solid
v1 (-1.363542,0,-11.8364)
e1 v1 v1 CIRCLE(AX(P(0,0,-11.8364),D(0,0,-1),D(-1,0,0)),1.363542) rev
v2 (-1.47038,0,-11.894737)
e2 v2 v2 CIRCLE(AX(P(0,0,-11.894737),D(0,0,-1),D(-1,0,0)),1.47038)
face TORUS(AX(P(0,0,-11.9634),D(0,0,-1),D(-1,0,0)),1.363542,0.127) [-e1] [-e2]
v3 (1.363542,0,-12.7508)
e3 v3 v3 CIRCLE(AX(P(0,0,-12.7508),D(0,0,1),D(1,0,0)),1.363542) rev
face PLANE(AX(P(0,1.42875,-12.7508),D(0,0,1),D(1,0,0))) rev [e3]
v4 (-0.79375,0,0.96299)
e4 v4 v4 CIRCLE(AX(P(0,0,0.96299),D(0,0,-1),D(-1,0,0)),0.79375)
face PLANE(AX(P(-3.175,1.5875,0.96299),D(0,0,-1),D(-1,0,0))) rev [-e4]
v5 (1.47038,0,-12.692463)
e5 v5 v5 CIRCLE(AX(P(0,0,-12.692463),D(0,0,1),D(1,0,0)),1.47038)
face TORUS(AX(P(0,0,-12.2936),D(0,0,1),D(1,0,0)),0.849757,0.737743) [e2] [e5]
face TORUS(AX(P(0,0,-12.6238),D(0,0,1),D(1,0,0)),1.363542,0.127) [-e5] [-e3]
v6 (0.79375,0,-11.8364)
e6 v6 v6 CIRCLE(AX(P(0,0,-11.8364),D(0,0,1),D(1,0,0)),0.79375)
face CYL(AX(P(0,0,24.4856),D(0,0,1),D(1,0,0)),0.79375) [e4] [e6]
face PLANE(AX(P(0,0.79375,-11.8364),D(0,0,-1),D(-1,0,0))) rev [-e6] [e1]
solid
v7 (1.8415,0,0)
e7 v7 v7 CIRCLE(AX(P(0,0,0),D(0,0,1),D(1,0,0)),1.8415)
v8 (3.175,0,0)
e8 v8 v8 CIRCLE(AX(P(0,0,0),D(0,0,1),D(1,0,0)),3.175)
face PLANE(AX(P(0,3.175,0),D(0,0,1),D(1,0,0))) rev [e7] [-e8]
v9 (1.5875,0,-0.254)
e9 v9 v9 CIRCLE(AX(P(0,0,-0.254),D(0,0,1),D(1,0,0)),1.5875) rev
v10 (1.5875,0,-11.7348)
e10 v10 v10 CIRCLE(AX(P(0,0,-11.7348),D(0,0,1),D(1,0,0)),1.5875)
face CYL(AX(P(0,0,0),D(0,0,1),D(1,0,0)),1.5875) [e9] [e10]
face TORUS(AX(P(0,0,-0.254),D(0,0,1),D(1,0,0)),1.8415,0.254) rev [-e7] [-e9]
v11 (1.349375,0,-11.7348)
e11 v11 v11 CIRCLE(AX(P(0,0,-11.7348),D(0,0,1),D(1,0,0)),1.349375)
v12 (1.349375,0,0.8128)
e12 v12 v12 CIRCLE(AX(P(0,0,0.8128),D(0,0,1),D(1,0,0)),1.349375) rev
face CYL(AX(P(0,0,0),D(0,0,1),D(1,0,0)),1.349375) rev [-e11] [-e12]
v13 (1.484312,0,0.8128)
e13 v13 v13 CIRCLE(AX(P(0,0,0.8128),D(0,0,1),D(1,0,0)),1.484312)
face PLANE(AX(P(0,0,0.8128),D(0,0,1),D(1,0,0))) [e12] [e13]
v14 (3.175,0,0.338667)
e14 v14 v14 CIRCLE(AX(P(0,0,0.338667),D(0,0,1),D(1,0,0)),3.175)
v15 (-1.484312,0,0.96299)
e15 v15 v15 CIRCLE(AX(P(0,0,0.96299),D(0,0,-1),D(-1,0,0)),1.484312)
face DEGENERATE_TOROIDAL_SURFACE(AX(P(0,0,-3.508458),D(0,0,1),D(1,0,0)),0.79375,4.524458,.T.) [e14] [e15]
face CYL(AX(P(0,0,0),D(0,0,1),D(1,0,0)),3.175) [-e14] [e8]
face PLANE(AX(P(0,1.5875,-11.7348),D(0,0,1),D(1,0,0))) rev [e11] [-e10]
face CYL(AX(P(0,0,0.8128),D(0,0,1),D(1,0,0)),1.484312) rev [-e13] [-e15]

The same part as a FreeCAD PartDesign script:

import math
import FreeCAD as App
import Part
import Sketcher

V = App.Vector
Q = App.Units.Quantity


def edges_at(feature, points):
    """Names of the edges that pass closest to the given points."""
    edges = feature.Shape.Edges
    near = lambda p: min(range(len(edges)), key=lambda i: edges[i].distToShape(Part.Vertex(*p))[0])
    return sorted({f"Edge{near(p) + 1}" for p in points})

doc = App.newDocument("Part")
body = doc.addObject("PartDesign::Body", "Body")

sketch1 = doc.addObject("Sketcher::SketchObject", "Sketch")
body.addObject(sketch1)
sketch1.AttachmentSupport = (doc.YZ_Plane, [""])
sketch1.MapMode = "FlatFace"
sketch1.addGeometry([
    Part.LineSegment(V(0.8, 24.5, 0), V(0, 24.5, 0)),
    Part.LineSegment(V(0, 24.5, 0), V(0, -12.8, 0)),
    Part.LineSegment(V(0, -12.8, 0), V(1.4, -12.8, 0)),
    Part.ArcOfCircle(Part.Circle(V(0.8, -12.3, 0), V(0, 0, 1), 0.7), math.radians(-38), math.radians(38)),
    Part.LineSegment(V(1.4, -11.8, 0), V(0.8, -11.8, 0)),
    Part.LineSegment(V(0.8, -11.8, 0), V(0.8, 24.5, 0)),
], False)
sketch1.addConstraint([
    Sketcher.Constraint("Coincident", 0, 2, 1, 1),
    Sketcher.Constraint("Coincident", 1, 2, 2, 1),
    Sketcher.Constraint("Coincident", 2, 2, 3, 1),
    Sketcher.Constraint("Coincident", 3, 2, 4, 1),
    Sketcher.Constraint("Coincident", 4, 2, 5, 1),
    Sketcher.Constraint("Coincident", 5, 2, 0, 1),
    Sketcher.Constraint("Horizontal", 0),
    Sketcher.Constraint("Vertical", 1),
    Sketcher.Constraint("Horizontal", 2),
    Sketcher.Constraint("Horizontal", 4),
    Sketcher.Constraint("Vertical", 5),
    Sketcher.Constraint("PointOnObject", 0, 2, -2),
    Sketcher.Constraint("Vertical", 2, 2, 3, 2),
    Sketcher.Constraint("DistanceY", 5, 1, 5, 2, Q("1.43 in")),
    Sketcher.Constraint("DistanceX", 0, 2, 0, 1, Q("0.03125 in")),
    Sketcher.Constraint("DistanceX", 4, 2, 4, 1, Q("0.025 in")),
    Sketcher.Constraint("DistanceY", 1, 2, 1, 1, Q("1.466 in")),
    Sketcher.Constraint("DistanceY", 3, 3, -1, 1, Q("0.484 in")),
    Sketcher.Constraint("Radius", 3, 0.737743),
])
revolution = doc.addObject("PartDesign::Revolution", "Revolution")
body.addObject(revolution)
revolution.Profile = sketch1
revolution.ReferenceAxis = (sketch1, ["V_Axis"])
revolution.Angle = 360
doc.recompute()

fillet = doc.addObject("PartDesign::Fillet", "Fillet")
body.addObject(fillet)
fillet.Base = (revolution, edges_at(revolution, [(-1.429, 0, -11.836), (-1.429, 0, -12.751)]))
fillet.Radius = Q("0.005 in")

sketch2 = doc.addObject("Sketcher::SketchObject", "Sketch001")
body.addObject(sketch2)
sketch2.AttachmentSupport = (doc.XZ_Plane, [""])
sketch2.MapMode = "FlatFace"
sketch2.addGeometry([
    Part.LineSegment(V(1, 23.2, 0), V(0, 24.5, 0)),
    Part.LineSegment(V(0, 24.5, 0), V(-1, 23.2, 0)),
    Part.LineSegment(V(-1, 23.2, 0), V(-1, 25, 0)),
    Part.LineSegment(V(-1, 25, 0), V(1, 25, 0)),
    Part.LineSegment(V(1, 25, 0), V(1, 23.2, 0)),
], False)
sketch2.addConstraint([
    Sketcher.Constraint("Coincident", 0, 2, 1, 1),
    Sketcher.Constraint("Coincident", 1, 2, 2, 1),
    Sketcher.Constraint("Coincident", 2, 2, 3, 1),
    Sketcher.Constraint("Coincident", 3, 2, 4, 1),
    Sketcher.Constraint("Coincident", 4, 2, 0, 1),
    Sketcher.Constraint("Vertical", 2),
    Sketcher.Constraint("Horizontal", 3),
    Sketcher.Constraint("Vertical", 4),
    Sketcher.Constraint("Symmetric", 1, 2, 4, 2, -2),
    Sketcher.Constraint("PointOnObject", 0, 2, -2),
    Sketcher.Constraint("Angle", 0, Q("127.5 deg")),
    Sketcher.Constraint("DistanceY", 0, 2, 2, 2, Q("0.02 in")),
    Sketcher.Constraint("DistanceX", 3, 1, 3, 2, Q("0.0785 in")),
    Sketcher.Constraint("DistanceY", -1, 1, 0, 2, Q("0.964 in")),
])
pocket1 = doc.addObject("PartDesign::Pocket", "Pocket")
body.addObject(pocket1)
pocket1.Profile = sketch2
pocket1.Type = "ThroughAll"
pocket1.Midplane = True

sketch3 = doc.addObject("Sketcher::SketchObject", "Sketch002")
body.addObject(sketch3)
sketch3.AttachmentSupport = (doc.YZ_Plane, [""])
sketch3.MapMode = "FlatFace"
sketch3.addGeometry([
    Part.LineSegment(V(1.6, 24.5, 0), V(-1.6, 24.5, 0)),
    Part.LineSegment(V(-1.6, 24.5, 0), V(-1.6, 1, 0)),
    Part.LineSegment(V(-1.6, 1, 0), V(1.6, 1, 0)),
    Part.LineSegment(V(1.6, 1, 0), V(1.6, 24.5, 0)),
], False)
sketch3.addConstraint([
    Sketcher.Constraint("Coincident", 0, 2, 1, 1),
    Sketcher.Constraint("Coincident", 1, 2, 2, 1),
    Sketcher.Constraint("Coincident", 2, 2, 3, 1),
    Sketcher.Constraint("Coincident", 3, 2, 0, 1),
    Sketcher.Constraint("Horizontal", 0),
    Sketcher.Constraint("Vertical", 1),
    Sketcher.Constraint("Horizontal", 2),
    Sketcher.Constraint("Vertical", 3),
    Sketcher.Constraint("DistanceX", 0, 2, 0, 1, Q("0.125 in")),
    Sketcher.Constraint("DistanceX", 0, 2, -1, 1, Q("0.0625 in")),
    Sketcher.Constraint("DistanceY", -1, 1, 0, 2, Q("0.964 in")),
    Sketcher.Constraint("DistanceY", 1, 2, 1, 1, 23.52261),
])
pocket2 = doc.addObject("PartDesign::Pocket", "Pocket001")
body.addObject(pocket2)
pocket2.Profile = sketch3
pocket2.Type = "ThroughAll"
pocket2.Midplane = True
body2 = doc.addObject("PartDesign::Body", "Body001")

sketch4 = doc.addObject("Sketcher::SketchObject", "Sketch003")
body2.addObject(sketch4)
sketch4.AttachmentSupport = (doc.getObject("YZ_Plane001"), [""])
sketch4.MapMode = "FlatFace"
sketch4.addGeometry([
    Part.LineSegment(V(3.17, 0, 0), V(3.17, 0.34, 0)),
    Part.ArcOfCircle(Part.Circle(V(0.79, -3.51, 0), V(0, 0, 1), 4.52), math.radians(58), math.radians(83)),
    Part.LineSegment(V(1.35, 0.98, 0), V(1.35, -11.73, 0)),
    Part.LineSegment(V(1.35, -11.73, 0), V(1.59, -11.73, 0)),
    Part.LineSegment(V(1.59, -11.73, 0), V(1.59, 0, 0)),
    Part.LineSegment(V(1.59, 0, 0), V(3.17, 0, 0)),
], False)
sketch4.addConstraint([
    Sketcher.Constraint("Coincident", 0, 2, 1, 1),
    Sketcher.Constraint("Coincident", 1, 2, 2, 1),
    Sketcher.Constraint("Coincident", 2, 2, 3, 1),
    Sketcher.Constraint("Coincident", 3, 2, 4, 1),
    Sketcher.Constraint("Coincident", 4, 2, 5, 1),
    Sketcher.Constraint("Coincident", 5, 2, 0, 1),
    Sketcher.Constraint("Vertical", 0),
    Sketcher.Constraint("Vertical", 2),
    Sketcher.Constraint("Horizontal", 3),
    Sketcher.Constraint("Vertical", 4),
    Sketcher.Constraint("Horizontal", 5),
    Sketcher.Constraint("PointOnObject", 4, 2, -1),
    Sketcher.Constraint("DistanceX", 5, 1, 5, 2, Q("0.0625 in")),
    Sketcher.Constraint("DistanceY", 4, 1, 4, 2, Q("0.462 in")),
    Sketcher.Constraint("DistanceX", -1, 1, 1, 3, Q("0.03125 in")),
    Sketcher.Constraint("DistanceX", -1, 1, 0, 2, Q("0.125 in")),
    Sketcher.Constraint("Radius", 1, 4.524458),
    Sketcher.Constraint("DistanceX", 3, 1, 3, 2, 0.238125),
    Sketcher.Constraint("DistanceY", 0, 1, 0, 2, 0.338667),
])
revolution2 = doc.addObject("PartDesign::Revolution", "Revolution001")
body2.addObject(revolution2)
revolution2.Profile = sketch4
revolution2.ReferenceAxis = (sketch4, ["V_Axis"])
revolution2.Angle = 360

sketch5 = doc.addObject("Sketcher::SketchObject", "Sketch004")
body2.addObject(sketch5)
sketch5.AttachmentSupport = (doc.getObject("XY_Plane001"), [""])
sketch5.MapMode = "FlatFace"
sketch5.AttachmentOffset = App.Placement(V(0, 0, 0.04 * 25.4), App.Rotation())
sketch5.addGeometry(Part.Circle(V(0, 0, 0), V(0, 0, 1), 1.5), False)
sketch5.addConstraint([
    Sketcher.Constraint("Coincident", 0, 3, -1, 1),
    Sketcher.Constraint("Diameter", 0, 2.968625),
])
pocket3 = doc.addObject("PartDesign::Pocket", "Pocket002")
body2.addObject(pocket3)
pocket3.Profile = sketch5
pocket3.Length = Q("0.008 in")
doc.recompute()

fillet2 = doc.addObject("PartDesign::Fillet", "Fillet001")
body2.addObject(fillet2)
fillet2.Base = (pocket3, edges_at(pocket3, [(-1.587, 0, 0)]))
fillet2.Radius = Q("0.01 in")

doc.recompute()
